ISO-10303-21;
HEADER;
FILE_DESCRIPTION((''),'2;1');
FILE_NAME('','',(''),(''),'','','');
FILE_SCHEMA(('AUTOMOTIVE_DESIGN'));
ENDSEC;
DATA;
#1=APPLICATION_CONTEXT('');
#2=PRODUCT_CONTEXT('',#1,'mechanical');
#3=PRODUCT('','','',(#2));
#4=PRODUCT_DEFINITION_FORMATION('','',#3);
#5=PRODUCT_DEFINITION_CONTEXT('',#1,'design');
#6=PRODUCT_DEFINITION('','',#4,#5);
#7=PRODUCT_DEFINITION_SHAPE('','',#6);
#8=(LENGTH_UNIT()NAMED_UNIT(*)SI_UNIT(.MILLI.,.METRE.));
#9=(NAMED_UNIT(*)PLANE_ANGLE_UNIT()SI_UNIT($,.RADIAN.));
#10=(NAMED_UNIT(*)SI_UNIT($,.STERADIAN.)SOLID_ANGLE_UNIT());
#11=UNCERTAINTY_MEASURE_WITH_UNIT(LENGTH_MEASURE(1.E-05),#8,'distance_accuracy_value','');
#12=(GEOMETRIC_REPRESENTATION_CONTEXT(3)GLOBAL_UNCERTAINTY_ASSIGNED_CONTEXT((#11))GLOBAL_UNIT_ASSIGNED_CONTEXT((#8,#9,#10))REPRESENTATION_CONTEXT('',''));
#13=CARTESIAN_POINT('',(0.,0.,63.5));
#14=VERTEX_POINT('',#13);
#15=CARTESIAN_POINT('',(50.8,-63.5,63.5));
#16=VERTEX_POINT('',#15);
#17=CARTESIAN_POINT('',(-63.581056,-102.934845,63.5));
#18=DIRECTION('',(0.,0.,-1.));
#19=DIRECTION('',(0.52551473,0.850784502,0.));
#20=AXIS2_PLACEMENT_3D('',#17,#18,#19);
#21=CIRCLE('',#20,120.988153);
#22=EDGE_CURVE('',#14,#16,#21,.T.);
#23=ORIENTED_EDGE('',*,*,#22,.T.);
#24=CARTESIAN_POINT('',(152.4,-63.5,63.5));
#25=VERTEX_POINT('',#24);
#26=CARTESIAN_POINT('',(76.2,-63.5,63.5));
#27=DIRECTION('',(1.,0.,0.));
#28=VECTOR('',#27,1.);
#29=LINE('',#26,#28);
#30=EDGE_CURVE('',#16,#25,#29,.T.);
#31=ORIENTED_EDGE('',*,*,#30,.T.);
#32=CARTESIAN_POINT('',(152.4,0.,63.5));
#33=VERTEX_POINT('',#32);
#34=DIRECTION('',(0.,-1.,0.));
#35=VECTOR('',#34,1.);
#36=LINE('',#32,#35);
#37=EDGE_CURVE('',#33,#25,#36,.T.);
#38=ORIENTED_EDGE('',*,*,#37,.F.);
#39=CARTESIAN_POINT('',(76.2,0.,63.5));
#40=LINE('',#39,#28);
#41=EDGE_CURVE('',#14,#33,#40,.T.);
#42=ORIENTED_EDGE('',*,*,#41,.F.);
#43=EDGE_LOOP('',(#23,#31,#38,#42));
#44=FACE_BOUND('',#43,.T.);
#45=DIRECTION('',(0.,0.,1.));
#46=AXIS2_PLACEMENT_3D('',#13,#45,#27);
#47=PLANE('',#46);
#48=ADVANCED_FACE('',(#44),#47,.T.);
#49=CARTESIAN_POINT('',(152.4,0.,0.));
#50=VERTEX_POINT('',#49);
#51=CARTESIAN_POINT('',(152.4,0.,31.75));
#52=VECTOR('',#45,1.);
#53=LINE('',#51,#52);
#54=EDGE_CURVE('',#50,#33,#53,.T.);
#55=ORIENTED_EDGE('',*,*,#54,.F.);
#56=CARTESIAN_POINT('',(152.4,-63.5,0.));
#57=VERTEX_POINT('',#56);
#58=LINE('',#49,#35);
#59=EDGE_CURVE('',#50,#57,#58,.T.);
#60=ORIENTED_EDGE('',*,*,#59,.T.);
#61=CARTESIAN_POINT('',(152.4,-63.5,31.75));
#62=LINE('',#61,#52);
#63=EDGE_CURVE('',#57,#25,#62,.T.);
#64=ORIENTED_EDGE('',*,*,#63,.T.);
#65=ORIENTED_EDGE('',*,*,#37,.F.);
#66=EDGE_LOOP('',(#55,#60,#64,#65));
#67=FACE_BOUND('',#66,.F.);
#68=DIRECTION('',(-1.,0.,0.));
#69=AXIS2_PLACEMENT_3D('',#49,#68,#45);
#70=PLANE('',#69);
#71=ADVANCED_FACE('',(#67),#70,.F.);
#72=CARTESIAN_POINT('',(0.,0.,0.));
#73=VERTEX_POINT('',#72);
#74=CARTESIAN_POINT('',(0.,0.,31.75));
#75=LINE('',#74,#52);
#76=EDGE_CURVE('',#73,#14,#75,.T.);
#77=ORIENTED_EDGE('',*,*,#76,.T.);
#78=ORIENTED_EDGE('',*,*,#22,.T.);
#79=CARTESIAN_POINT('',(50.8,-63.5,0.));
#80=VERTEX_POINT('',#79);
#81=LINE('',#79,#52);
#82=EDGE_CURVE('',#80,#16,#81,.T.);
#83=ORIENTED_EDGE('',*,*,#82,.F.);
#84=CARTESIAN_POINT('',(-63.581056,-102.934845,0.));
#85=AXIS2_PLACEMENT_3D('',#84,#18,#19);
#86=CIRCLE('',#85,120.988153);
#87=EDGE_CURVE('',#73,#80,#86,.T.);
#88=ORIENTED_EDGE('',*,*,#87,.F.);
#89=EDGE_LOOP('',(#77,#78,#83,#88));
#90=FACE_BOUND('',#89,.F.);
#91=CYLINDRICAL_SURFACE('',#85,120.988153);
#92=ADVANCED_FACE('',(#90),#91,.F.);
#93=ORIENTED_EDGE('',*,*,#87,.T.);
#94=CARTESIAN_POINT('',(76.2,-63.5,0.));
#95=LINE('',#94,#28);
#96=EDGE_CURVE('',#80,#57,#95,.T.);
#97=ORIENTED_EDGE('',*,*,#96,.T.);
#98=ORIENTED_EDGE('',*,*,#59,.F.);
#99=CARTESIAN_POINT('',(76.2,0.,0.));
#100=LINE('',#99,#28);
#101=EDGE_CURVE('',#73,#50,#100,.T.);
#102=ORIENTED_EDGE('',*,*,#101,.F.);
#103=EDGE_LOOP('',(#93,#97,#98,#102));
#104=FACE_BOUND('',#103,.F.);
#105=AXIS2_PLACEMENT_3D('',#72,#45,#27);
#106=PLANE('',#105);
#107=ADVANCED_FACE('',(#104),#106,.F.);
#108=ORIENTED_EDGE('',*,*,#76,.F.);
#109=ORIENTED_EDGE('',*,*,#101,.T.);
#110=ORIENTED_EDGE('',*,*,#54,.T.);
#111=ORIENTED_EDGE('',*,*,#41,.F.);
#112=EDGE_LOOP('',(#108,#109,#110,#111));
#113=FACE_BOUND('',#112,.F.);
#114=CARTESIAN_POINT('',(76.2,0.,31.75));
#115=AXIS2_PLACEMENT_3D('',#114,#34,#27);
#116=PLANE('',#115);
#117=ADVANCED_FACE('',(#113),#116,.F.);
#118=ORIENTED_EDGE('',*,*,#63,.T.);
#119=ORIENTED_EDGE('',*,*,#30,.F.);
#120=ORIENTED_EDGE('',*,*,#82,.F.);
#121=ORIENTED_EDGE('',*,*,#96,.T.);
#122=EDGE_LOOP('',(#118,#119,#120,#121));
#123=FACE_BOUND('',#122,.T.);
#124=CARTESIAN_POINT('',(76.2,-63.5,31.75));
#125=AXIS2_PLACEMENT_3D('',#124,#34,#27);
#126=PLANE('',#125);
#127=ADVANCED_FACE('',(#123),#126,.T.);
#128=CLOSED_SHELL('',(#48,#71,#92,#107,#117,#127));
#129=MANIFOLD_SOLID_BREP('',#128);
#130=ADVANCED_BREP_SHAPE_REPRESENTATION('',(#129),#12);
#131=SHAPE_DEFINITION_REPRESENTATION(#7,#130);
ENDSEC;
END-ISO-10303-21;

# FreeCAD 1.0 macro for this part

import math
import FreeCAD as App
import Part
import Sketcher
from FreeCAD import Vector
Q = App.Units.Quantity

doc = App.newDocument("Part")
params = doc.addObject("Spreadsheet::Sheet", "Params")
for row, (alias, value) in enumerate([
    ("sketch1_width", "6 in"),
    ("sketch1_height", "2.5 in"),
    ("pad1_length", "2.5 in"),
    ("sketch2_width", "2 in"),
    ("sketch2_height", "2.5 in"),
], start=1):
    params.set(f"A{row}", alias)
    params.set(f"B{row}", "=" + value)
    params.setAlias(f"B{row}", alias)

body = doc.addObject("PartDesign::Body", "Body")

# Sketch on XZ plane
sketch1 = body.newObject("Sketcher::SketchObject", "Sketch")
sketch1.AttachmentSupport = (doc.getObject("XZ_Plane"), [""])
sketch1.MapMode = "FlatFace"
sketch1.addGeometry([
    Part.LineSegment(Vector(0, 63.5, 0), Vector(0, 0, 0)),
    Part.LineSegment(Vector(0, 0, 0), Vector(152.4, 0, 0)),
    Part.LineSegment(Vector(152.4, 0, 0), Vector(152.4, 63.5, 0)),
    Part.LineSegment(Vector(152.4, 63.5, 0), Vector(0, 63.5, 0)),
], False)
sketch1.addConstraint([
    Sketcher.Constraint("Coincident", 0, 2, 1, 1),
    Sketcher.Constraint("Coincident", 1, 2, 2, 1),
    Sketcher.Constraint("Coincident", 2, 2, 3, 1),
    Sketcher.Constraint("Coincident", 3, 2, 0, 1),
    Sketcher.Constraint("Vertical", 0),
    Sketcher.Constraint("Horizontal", 1),
    Sketcher.Constraint("Vertical", 2),
    Sketcher.Constraint("Horizontal", 3),
    Sketcher.Constraint("Coincident", 0, 2, -1, 1),
    Sketcher.Constraint("DistanceX", 1, 1, 1, 2, Q("6 in")),
    Sketcher.Constraint("DistanceY", 0, 2, 0, 1, Q("2.5 in")),
])
sketch1.setExpression("Constraints[9]", "Params.sketch1_width")
sketch1.setExpression("Constraints[10]", "Params.sketch1_height")
pad1 = body.newObject("PartDesign::Pad", "Pad")
pad1.Profile = sketch1
pad1.setExpression("Length", "Params.pad1_length")

# Sketch on XY plane
sketch2 = body.newObject("Sketcher::SketchObject", "Sketch001")
sketch2.AttachmentSupport = (doc.getObject("XY_Plane"), [""])
sketch2.MapMode = "FlatFace"
sketch2.addGeometry([
    Part.LineSegment(Vector(0, -63.5, 0), Vector(0, 0, 0)),
    Part.ArcOfCircle(Part.Circle(Vector(-63.581056, -102.934845, 0), Vector(0, 0, 1), 120.988153), math.radians(19.022518), math.radians(58.297099)),
    Part.LineSegment(Vector(50.8, -63.5, 0), Vector(0, -63.5, 0)),
], False)
sketch2.addConstraint([
    Sketcher.Constraint("Coincident", 0, 2, 1, 2),
    Sketcher.Constraint("Coincident", 1, 1, 2, 1),
    Sketcher.Constraint("Coincident", 2, 2, 0, 1),
    Sketcher.Constraint("Vertical", 0),
    Sketcher.Constraint("Horizontal", 2),
    Sketcher.Constraint("Coincident", 0, 2, -1, 1),
    Sketcher.Constraint("DistanceX", 2, 2, 2, 1, Q("2 in")),
    Sketcher.Constraint("DistanceY", 0, 1, 0, 2, Q("2.5 in")),
    Sketcher.Constraint("Radius", 1, Q("120.988153 mm")),
])
sketch2.setExpression("Constraints[6]", "Params.sketch2_width")
sketch2.setExpression("Constraints[7]", "Params.sketch2_height")
pocket1 = body.newObject("PartDesign::Pocket", "Pocket")
pocket1.Profile = sketch2
pocket1.Type = "ThroughAll"
pocket1.Reversed = True

doc.recompute()
